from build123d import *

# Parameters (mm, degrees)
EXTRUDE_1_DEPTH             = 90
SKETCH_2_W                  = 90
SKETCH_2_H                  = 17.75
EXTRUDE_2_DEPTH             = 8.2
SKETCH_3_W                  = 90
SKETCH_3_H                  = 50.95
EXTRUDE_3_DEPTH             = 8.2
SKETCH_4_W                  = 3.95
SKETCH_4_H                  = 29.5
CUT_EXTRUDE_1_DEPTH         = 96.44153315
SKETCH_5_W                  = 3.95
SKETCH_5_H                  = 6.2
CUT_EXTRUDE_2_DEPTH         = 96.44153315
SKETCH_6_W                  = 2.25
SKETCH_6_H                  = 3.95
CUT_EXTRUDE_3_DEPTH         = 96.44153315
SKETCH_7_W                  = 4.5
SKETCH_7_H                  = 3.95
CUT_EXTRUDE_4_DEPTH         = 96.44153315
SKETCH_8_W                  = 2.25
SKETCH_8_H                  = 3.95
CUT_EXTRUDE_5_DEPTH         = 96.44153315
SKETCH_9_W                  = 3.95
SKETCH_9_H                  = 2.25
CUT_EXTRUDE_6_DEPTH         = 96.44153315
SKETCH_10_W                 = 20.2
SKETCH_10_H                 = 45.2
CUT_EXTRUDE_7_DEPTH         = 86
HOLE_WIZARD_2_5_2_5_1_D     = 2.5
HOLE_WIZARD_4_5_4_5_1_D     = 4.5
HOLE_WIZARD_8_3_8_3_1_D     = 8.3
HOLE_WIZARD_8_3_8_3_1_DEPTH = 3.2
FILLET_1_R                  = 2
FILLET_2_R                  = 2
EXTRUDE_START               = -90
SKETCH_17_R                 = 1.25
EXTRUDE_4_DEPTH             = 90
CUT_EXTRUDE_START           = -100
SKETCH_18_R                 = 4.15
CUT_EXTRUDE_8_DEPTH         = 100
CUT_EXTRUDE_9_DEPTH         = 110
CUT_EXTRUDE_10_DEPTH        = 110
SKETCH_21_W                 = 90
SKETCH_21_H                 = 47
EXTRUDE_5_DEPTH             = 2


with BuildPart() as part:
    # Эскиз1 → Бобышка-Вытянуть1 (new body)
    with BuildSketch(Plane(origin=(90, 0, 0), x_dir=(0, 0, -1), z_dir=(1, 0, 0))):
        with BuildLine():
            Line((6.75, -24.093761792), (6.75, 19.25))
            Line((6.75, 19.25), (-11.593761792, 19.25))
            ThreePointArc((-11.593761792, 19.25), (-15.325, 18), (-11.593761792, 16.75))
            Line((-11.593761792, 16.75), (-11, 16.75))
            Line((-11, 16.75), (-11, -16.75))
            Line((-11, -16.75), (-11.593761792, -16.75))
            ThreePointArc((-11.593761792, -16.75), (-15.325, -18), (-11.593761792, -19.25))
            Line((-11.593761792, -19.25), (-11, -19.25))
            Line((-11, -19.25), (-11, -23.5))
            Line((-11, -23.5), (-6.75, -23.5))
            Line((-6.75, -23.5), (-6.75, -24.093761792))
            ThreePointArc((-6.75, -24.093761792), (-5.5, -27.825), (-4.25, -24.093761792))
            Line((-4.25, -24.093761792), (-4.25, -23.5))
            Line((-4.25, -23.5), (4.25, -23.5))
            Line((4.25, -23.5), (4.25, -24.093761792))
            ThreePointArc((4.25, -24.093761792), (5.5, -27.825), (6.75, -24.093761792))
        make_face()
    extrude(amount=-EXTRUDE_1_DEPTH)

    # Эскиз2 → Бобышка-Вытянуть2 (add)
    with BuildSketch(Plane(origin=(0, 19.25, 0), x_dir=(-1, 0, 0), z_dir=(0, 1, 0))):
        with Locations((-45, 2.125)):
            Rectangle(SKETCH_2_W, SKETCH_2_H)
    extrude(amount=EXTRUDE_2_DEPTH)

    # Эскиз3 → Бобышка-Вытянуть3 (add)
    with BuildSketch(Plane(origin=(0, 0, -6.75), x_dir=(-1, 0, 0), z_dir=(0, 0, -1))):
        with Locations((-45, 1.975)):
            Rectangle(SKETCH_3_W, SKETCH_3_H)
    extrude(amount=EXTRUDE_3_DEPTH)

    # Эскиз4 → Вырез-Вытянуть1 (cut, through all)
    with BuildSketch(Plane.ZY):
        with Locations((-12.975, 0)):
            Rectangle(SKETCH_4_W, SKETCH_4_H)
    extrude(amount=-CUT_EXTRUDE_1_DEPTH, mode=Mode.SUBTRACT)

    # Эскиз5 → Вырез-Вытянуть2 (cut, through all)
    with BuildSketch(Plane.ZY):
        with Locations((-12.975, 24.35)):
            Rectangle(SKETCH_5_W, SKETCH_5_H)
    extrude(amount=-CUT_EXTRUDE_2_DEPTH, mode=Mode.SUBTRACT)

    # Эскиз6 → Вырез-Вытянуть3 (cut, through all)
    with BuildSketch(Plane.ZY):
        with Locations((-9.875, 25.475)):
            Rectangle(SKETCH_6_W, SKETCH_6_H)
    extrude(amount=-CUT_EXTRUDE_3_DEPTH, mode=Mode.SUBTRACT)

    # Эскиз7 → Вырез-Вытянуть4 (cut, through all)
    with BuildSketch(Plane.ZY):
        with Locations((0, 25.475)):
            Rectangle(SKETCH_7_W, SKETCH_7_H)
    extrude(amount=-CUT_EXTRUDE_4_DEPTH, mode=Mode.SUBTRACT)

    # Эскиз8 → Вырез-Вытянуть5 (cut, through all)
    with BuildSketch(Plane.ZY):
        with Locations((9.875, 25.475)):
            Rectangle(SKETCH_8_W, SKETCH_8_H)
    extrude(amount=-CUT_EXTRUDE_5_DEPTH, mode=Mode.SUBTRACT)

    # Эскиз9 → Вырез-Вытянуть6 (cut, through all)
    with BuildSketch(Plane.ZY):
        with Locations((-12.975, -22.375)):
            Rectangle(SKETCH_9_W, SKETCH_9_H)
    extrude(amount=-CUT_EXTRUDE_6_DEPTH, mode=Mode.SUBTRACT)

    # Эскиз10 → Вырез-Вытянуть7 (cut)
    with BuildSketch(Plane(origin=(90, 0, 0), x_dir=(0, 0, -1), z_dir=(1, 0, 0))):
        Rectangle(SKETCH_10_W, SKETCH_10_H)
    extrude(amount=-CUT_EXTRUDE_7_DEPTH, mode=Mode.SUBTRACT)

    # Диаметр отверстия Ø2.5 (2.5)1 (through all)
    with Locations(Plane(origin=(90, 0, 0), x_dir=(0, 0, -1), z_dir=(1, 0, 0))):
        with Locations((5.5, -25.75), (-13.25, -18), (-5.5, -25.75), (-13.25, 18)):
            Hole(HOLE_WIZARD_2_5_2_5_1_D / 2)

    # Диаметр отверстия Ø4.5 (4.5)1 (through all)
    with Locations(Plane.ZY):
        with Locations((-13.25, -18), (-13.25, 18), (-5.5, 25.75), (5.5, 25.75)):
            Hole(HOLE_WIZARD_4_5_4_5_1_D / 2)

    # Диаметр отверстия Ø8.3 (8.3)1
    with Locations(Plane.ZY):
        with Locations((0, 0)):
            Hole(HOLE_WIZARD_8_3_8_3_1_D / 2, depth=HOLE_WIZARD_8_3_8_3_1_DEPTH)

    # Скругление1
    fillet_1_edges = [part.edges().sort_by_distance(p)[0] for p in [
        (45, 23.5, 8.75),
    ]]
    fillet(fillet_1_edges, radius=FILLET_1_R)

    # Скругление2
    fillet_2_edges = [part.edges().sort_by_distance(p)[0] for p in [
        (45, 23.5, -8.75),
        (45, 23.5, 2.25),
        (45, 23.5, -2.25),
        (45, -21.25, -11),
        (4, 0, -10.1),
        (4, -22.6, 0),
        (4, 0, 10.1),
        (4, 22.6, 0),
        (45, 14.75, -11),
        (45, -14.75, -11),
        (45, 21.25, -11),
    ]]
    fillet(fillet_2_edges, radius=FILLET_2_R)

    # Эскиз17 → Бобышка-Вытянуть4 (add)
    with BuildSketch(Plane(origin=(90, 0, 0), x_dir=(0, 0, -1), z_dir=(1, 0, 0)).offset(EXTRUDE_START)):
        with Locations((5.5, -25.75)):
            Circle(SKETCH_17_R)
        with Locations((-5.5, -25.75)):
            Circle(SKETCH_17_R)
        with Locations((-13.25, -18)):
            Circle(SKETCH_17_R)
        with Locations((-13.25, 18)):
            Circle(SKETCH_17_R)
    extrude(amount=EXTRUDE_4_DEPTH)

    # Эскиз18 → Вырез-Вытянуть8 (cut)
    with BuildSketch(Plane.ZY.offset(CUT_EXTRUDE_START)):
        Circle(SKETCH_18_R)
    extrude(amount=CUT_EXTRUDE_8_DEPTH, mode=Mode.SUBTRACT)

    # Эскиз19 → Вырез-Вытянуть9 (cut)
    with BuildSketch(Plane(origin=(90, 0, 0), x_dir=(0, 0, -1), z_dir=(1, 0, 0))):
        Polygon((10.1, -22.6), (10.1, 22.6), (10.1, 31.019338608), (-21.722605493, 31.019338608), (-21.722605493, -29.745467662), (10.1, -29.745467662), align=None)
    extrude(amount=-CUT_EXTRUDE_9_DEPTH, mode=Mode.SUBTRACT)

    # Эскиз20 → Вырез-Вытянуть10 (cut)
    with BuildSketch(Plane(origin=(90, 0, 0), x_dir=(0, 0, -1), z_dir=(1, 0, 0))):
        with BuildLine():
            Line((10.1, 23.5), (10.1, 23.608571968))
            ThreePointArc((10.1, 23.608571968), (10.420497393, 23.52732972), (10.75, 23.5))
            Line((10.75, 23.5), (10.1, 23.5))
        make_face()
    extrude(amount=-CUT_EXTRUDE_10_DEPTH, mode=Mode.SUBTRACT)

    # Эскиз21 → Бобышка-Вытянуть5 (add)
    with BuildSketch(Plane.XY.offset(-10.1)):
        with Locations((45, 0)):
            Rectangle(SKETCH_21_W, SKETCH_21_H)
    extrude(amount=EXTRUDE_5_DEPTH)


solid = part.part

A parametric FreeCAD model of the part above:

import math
import FreeCAD as App
import Part
import Sketcher

V = App.Vector
Q = App.Units.Quantity


def edges_at(feature, points):
    """Names of the edges that pass closest to the given points."""
    edges = feature.Shape.Edges
    near = lambda p: min(range(len(edges)), key=lambda i: edges[i].distToShape(Part.Vertex(*p))[0])
    return sorted({f"Edge{near(p) + 1}" for p in points})


def add_polygon(sketch, points):
    """Adds a closed chain of lines whose ends are joined by coincident constraints."""
    first, n = sketch.GeometryCount, len(points)
    for a, b in zip(points, points[1:] + points[:1]):
        sketch.addGeometry(Part.LineSegment(App.Vector(*a, 0), App.Vector(*b, 0)), False)
    for i in range(n):
        sketch.addConstraint(Sketcher.Constraint("Coincident", first + i, 2, first + (i + 1) % n, 1))

doc = App.newDocument("Part")
params = doc.addObject("Spreadsheet::Sheet", "Params")
for row, (alias, value) in enumerate([
    ("sketch1_width", "33.5 mm"),
    ("sketch1_height", "8.5 mm"),
    ("pad1_length", "90 mm"),
    ("sketch2_width", "90 mm"),
    ("sketch2_height", "17.75 mm"),
    ("pad2_length", "8.2 mm"),
    ("sketch3_width", "90 mm"),
    ("sketch3_height", "50.95 mm"),
    ("pad3_length", "8.2 mm"),
    ("sketch4_width", "29.5 mm"),
    ("sketch4_height", "3.95 mm"),
    ("sketch5_width", "6.2 mm"),
    ("sketch5_height", "3.95 mm"),
    ("sketch6_width", "3.95 mm"),
    ("sketch6_height", "2.25 mm"),
    ("sketch7_height", "4.5 mm"),
    ("sketch7_width", "3.95 mm"),
    ("sketch8_width", "3.95 mm"),
    ("sketch8_height", "2.25 mm"),
    ("sketch9_width", "2.25 mm"),
    ("sketch9_height", "3.95 mm"),
    ("sketch10_width", "45.2 mm"),
    ("sketch10_height", "20.2 mm"),
    ("pocket7_length", "86 mm"),
    ("sketch11_diameter", "2.5 mm"),
    ("hole_diameter", "2.5 mm"),
    ("sketch12_diameter", "4.5 mm"),
    ("hole2_diameter", "4.5 mm"),
    ("sketch13_diameter", "8.3 mm"),
    ("hole3_diameter", "8.3 mm"),
    ("hole3_depth", "3.2 mm"),
    ("fillet_radius", "2 mm"),
    ("fillet2_radius", "2 mm"),
    ("sketch14_diameter", "2.5 mm"),
    ("pad4_length", "90 mm"),
    ("sketch15_diameter", "8.3 mm"),
    ("pocket8_length", "100 mm"),
    ("pocket9_length", "110 mm"),
    ("sketch17_radius", "2 mm"),
    ("sketch17_height", "0.65 mm"),
    ("pocket10_length", "110 mm"),
    ("sketch18_width", "90 mm"),
    ("sketch18_height", "47 mm"),
    ("pad5_length", "2 mm"),
], start=1):
    params.set(f"A{row}", alias)
    params.set(f"B{row}", "=" + value)
    params.setAlias(f"B{row}", alias)

body = doc.addObject("PartDesign::Body", "Body")

# Sketch on YZ plane
sketch1 = body.newObject("Sketcher::SketchObject", "Sketch")
sketch1.AttachmentSupport = (doc.getObject("YZ_Plane"), [""])
sketch1.MapMode = "FlatFace"
sketch1.AttachmentOffset = App.Placement(V(0, 0, 90), App.Rotation())
sketch1.addGeometry(Part.LineSegment(V(-24.1, -6.8, 0), V(19.2, -6.8, 0)), False)
sketch1.addGeometry(Part.LineSegment(V(19.2, -6.8, 0), V(19.2, 11.6, 0)), False)
sketch1.addGeometry(Part.ArcOfCircle(Part.Circle(V(18, 13.2, 0), V(0, 0, 1), 2.1), math.radians(-53), math.radians(233)), False)
sketch1.addGeometry(Part.LineSegment(V(16.8, 11.6, 0), V(16.8, 11, 0)), False)
sketch1.addGeometry(Part.LineSegment(V(16.8, 11, 0), V(-16.8, 11, 0)), False)
sketch1.addGeometry(Part.LineSegment(V(-16.8, 11, 0), V(-16.8, 11.6, 0)), False)
sketch1.addGeometry(Part.ArcOfCircle(Part.Circle(V(-18, 13.2, 0), V(0, 0, 1), 2.1), math.radians(-53), math.radians(233)), False)
sketch1.addGeometry(Part.LineSegment(V(-19.2, 11.6, 0), V(-19.2, 11, 0)), False)
sketch1.addGeometry(Part.LineSegment(V(-19.2, 11, 0), V(-23.5, 11, 0)), False)
sketch1.addGeometry(Part.LineSegment(V(-23.5, 11, 0), V(-23.5, 6.8, 0)), False)
sketch1.addGeometry(Part.LineSegment(V(-23.5, 6.8, 0), V(-24.1, 6.8, 0)), False)
sketch1.addGeometry(Part.ArcOfCircle(Part.Circle(V(-25.8, 5.5, 0), V(0, 0, 1), 2.1), math.radians(37), math.radians(323)), False)
sketch1.addGeometry(Part.LineSegment(V(-24.1, 4.2, 0), V(-23.5, 4.2, 0)), False)
sketch1.addGeometry(Part.LineSegment(V(-23.5, 4.2, 0), V(-23.5, -4.2, 0)), False)
sketch1.addGeometry(Part.LineSegment(V(-23.5, -4.2, 0), V(-24.1, -4.2, 0)), False)
sketch1.addGeometry(Part.ArcOfCircle(Part.Circle(V(-25.8, -5.5, 0), V(0, 0, 1), 2.1), math.radians(37), math.radians(323)), False)
sketch1.addConstraint(Sketcher.Constraint("Coincident", 0, 2, 1, 1))
sketch1.addConstraint(Sketcher.Constraint("Coincident", 1, 2, 2, 1))
sketch1.addConstraint(Sketcher.Constraint("Coincident", 2, 2, 3, 1))
sketch1.addConstraint(Sketcher.Constraint("Coincident", 3, 2, 4, 1))
sketch1.addConstraint(Sketcher.Constraint("Coincident", 4, 2, 5, 1))
sketch1.addConstraint(Sketcher.Constraint("Coincident", 5, 2, 6, 1))
sketch1.addConstraint(Sketcher.Constraint("Coincident", 6, 2, 7, 1))
sketch1.addConstraint(Sketcher.Constraint("Coincident", 7, 2, 8, 1))
sketch1.addConstraint(Sketcher.Constraint("Coincident", 8, 2, 9, 1))
sketch1.addConstraint(Sketcher.Constraint("Coincident", 9, 2, 10, 1))
sketch1.addConstraint(Sketcher.Constraint("Coincident", 10, 2, 11, 1))
sketch1.addConstraint(Sketcher.Constraint("Coincident", 11, 2, 12, 1))
sketch1.addConstraint(Sketcher.Constraint("Coincident", 12, 2, 13, 1))
sketch1.addConstraint(Sketcher.Constraint("Coincident", 13, 2, 14, 1))
sketch1.addConstraint(Sketcher.Constraint("Coincident", 14, 2, 15, 1))
sketch1.addConstraint(Sketcher.Constraint("Coincident", 15, 2, 0, 1))
sketch1.addConstraint(Sketcher.Constraint("Horizontal", 0))
sketch1.addConstraint(Sketcher.Constraint("Vertical", 1))
sketch1.addConstraint(Sketcher.Constraint("Vertical", 3))
sketch1.addConstraint(Sketcher.Constraint("Horizontal", 4))
sketch1.addConstraint(Sketcher.Constraint("Vertical", 5))
sketch1.addConstraint(Sketcher.Constraint("Vertical", 7))
sketch1.addConstraint(Sketcher.Constraint("Horizontal", 8))
sketch1.addConstraint(Sketcher.Constraint("Vertical", 9))
sketch1.addConstraint(Sketcher.Constraint("Horizontal", 10))
sketch1.addConstraint(Sketcher.Constraint("Horizontal", 12))
sketch1.addConstraint(Sketcher.Constraint("Vertical", 13))
sketch1.addConstraint(Sketcher.Constraint("Horizontal", 14))
sketch1.addConstraint(Sketcher.Constraint("Equal", 2, 6))
sketch1.addConstraint(Sketcher.Constraint("Equal", 6, 11))
sketch1.addConstraint(Sketcher.Constraint("Equal", 11, 15))
sketch1.addConstraint(Sketcher.Constraint("Symmetric", 2, 3, 6, 3, -2))
sketch1.addConstraint(Sketcher.Constraint("Symmetric", 11, 3, 15, 3, -1))
sketch1.addConstraint(Sketcher.Constraint("Horizontal", 1, 2, 2, 2))
sketch1.addConstraint(Sketcher.Constraint("Horizontal", 2, 2, 5, 2))
sketch1.addConstraint(Sketcher.Constraint("Horizontal", 5, 2, 6, 2))
sketch1.addConstraint(Sketcher.Constraint("Horizontal", 4, 2, 7, 2))
sketch1.addConstraint(Sketcher.Constraint("Vertical", 10, 2, 11, 2))
sketch1.addConstraint(Sketcher.Constraint("Vertical", 9, 2, 12, 2))
sketch1.addConstraint(Sketcher.Constraint("Vertical", 11, 2, 14, 2))
sketch1.addConstraint(Sketcher.Constraint("Vertical", 14, 2, 15, 2))
sketch1.addConstraint(Sketcher.Constraint("Equal", 14, 3))
sketch1.addConstraint(Sketcher.Constraint("Equal", 8, 9))
sketch1.addConstraint(Sketcher.Constraint("DistanceX", 4, 2, 4, 1, Q("33.5 mm")))
sketch1.addConstraint(Sketcher.Constraint("DistanceY", 13, 2, 13, 1, Q("8.5 mm")))
sketch1.addConstraint(Sketcher.Constraint("DistanceX", -1, 1, 2, 3, Q("18 mm")))
sketch1.addConstraint(Sketcher.Constraint("DistanceY", -1, 1, 3, 2, Q("11 mm")))
sketch1.addConstraint(Sketcher.Constraint("Radius", 2, Q("2.075 mm")))
sketch1.addConstraint(Sketcher.Constraint("DistanceY", 15, 3, 11, 3, Q("11 mm")))
sketch1.addConstraint(Sketcher.Constraint("DistanceY", 0, 2, 2, 3, Q("20 mm")))
sketch1.setExpression("Constraints[43]", "Params.sketch1_width")
sketch1.setExpression("Constraints[44]", "Params.sketch1_height")
pad1 = body.newObject("PartDesign::Pad", "Pad")
pad1.Profile = sketch1
pad1.setExpression("Length", "Params.pad1_length")
pad1.Reversed = True

# Sketch on XZ plane
sketch2 = body.newObject("Sketcher::SketchObject", "Sketch001")
sketch2.AttachmentSupport = (doc.getObject("XZ_Plane"), [""])
sketch2.MapMode = "FlatFace"
sketch2.AttachmentOffset = App.Placement(V(0, 0, -19.25), App.Rotation())
add_polygon(sketch2, [(90, 11), (90, -7), (0, -7), (0, 11)])  # lines 0-3
sketch2.addConstraint(Sketcher.Constraint("Vertical", 0))
sketch2.addConstraint(Sketcher.Constraint("Horizontal", 1))
sketch2.addConstraint(Sketcher.Constraint("Vertical", 2))
sketch2.addConstraint(Sketcher.Constraint("Horizontal", 3))
sketch2.addConstraint(Sketcher.Constraint("PointOnObject", 1, 2, -2))
sketch2.addConstraint(Sketcher.Constraint("DistanceX", 1, 2, 1, 1, Q("90 mm")))
sketch2.addConstraint(Sketcher.Constraint("DistanceY", -1, 1, 2, 2, Q("11 mm")))
sketch2.addConstraint(Sketcher.Constraint("DistanceY", 0, 2, 0, 1, Q("17.75 mm")))
sketch2.setExpression("Constraints[9]", "Params.sketch2_width")
sketch2.setExpression("Constraints[11]", "Params.sketch2_height")
pad2 = body.newObject("PartDesign::Pad", "Pad001")
pad2.Profile = sketch2
pad2.setExpression("Length", "Params.pad2_length")
pad2.Reversed = True

# Sketch on XY plane
sketch3 = body.newObject("Sketcher::SketchObject", "Sketch002")
sketch3.AttachmentSupport = (doc.getObject("XY_Plane"), [""])
sketch3.MapMode = "FlatFace"
sketch3.AttachmentOffset = App.Placement(V(0, 0, -6.75), App.Rotation())
add_polygon(sketch3, [(90, 27), (90, -24), (0, -24), (0, 27)])  # lines 0-3
sketch3.addConstraint(Sketcher.Constraint("Vertical", 0))
sketch3.addConstraint(Sketcher.Constraint("Horizontal", 1))
sketch3.addConstraint(Sketcher.Constraint("Vertical", 2))
sketch3.addConstraint(Sketcher.Constraint("Horizontal", 3))
sketch3.addConstraint(Sketcher.Constraint("PointOnObject", 1, 2, -2))
sketch3.addConstraint(Sketcher.Constraint("DistanceX", 1, 2, 1, 1, Q("90 mm")))
sketch3.addConstraint(Sketcher.Constraint("DistanceY", 0, 2, 0, 1, Q("50.95 mm")))
sketch3.addConstraint(Sketcher.Constraint("DistanceY", 0, 2, -1, 1, Q("23.5 mm")))
sketch3.setExpression("Constraints[9]", "Params.sketch3_width")
sketch3.setExpression("Constraints[10]", "Params.sketch3_height")
pad3 = body.newObject("PartDesign::Pad", "Pad002")
pad3.Profile = sketch3
pad3.setExpression("Length", "Params.pad3_length")
pad3.Reversed = True

# Sketch on YZ plane
sketch4 = body.newObject("Sketcher::SketchObject", "Sketch003")
sketch4.AttachmentSupport = (doc.getObject("YZ_Plane"), [""])
sketch4.MapMode = "FlatFace"
add_polygon(sketch4, [(14.8, -14.9), (-14.8, -14.9), (-14.8, -11), (14.8, -11)])  # lines 0-3
sketch4.addConstraint(Sketcher.Constraint("Horizontal", 0))
sketch4.addConstraint(Sketcher.Constraint("Vertical", 1))
sketch4.addConstraint(Sketcher.Constraint("Horizontal", 2))
sketch4.addConstraint(Sketcher.Constraint("Vertical", 3))
sketch4.addConstraint(Sketcher.Constraint("DistanceX", 0, 2, 0, 1, Q("29.5 mm")))
sketch4.addConstraint(Sketcher.Constraint("DistanceY", 1, 2, -1, 1, Q("11 mm")))
sketch4.addConstraint(Sketcher.Constraint("DistanceY", 1, 1, 1, 2, Q("3.95 mm")))
sketch4.addConstraint(Sketcher.Constraint("DistanceX", 0, 2, -1, 1, Q("14.75 mm")))
sketch4.setExpression("Constraints[8]", "Params.sketch4_width")
sketch4.setExpression("Constraints[10]", "Params.sketch4_height")
pocket1 = body.newObject("PartDesign::Pocket", "Pocket")
pocket1.Profile = sketch4
pocket1.Type = "ThroughAll"
pocket1.Reversed = True

# Sketch on YZ plane
sketch5 = body.newObject("Sketcher::SketchObject", "Sketch004")
sketch5.AttachmentSupport = (doc.getObject("YZ_Plane"), [""])
sketch5.MapMode = "FlatFace"
add_polygon(sketch5, [(27.4, -14.9), (21.2, -14.9), (21.2, -11), (27.4, -11)])  # lines 0-3
sketch5.addConstraint(Sketcher.Constraint("Horizontal", 0))
sketch5.addConstraint(Sketcher.Constraint("Vertical", 1))
sketch5.addConstraint(Sketcher.Constraint("Horizontal", 2))
sketch5.addConstraint(Sketcher.Constraint("Vertical", 3))
sketch5.addConstraint(Sketcher.Constraint("DistanceX", 0, 2, 0, 1, Q("6.2 mm")))
sketch5.addConstraint(Sketcher.Constraint("DistanceY", 1, 2, -1, 1, Q("11 mm")))
sketch5.addConstraint(Sketcher.Constraint("DistanceY", 1, 1, 1, 2, Q("3.95 mm")))
sketch5.addConstraint(Sketcher.Constraint("DistanceX", -1, 1, 0, 2, Q("21.25 mm")))
sketch5.setExpression("Constraints[8]", "Params.sketch5_width")
sketch5.setExpression("Constraints[10]", "Params.sketch5_height")
pocket2 = body.newObject("PartDesign::Pocket", "Pocket001")
pocket2.Profile = sketch5
pocket2.Type = "ThroughAll"
pocket2.Reversed = True

# Sketch on YZ plane
sketch6 = body.newObject("Sketcher::SketchObject", "Sketch005")
sketch6.AttachmentSupport = (doc.getObject("YZ_Plane"), [""])
sketch6.MapMode = "FlatFace"
add_polygon(sketch6, [(27.4, -11), (23.5, -11), (23.5, -8.8), (27.4, -8.8)])  # lines 0-3
sketch6.addConstraint(Sketcher.Constraint("Horizontal", 0))
sketch6.addConstraint(Sketcher.Constraint("Vertical", 1))
sketch6.addConstraint(Sketcher.Constraint("Horizontal", 2))
sketch6.addConstraint(Sketcher.Constraint("Vertical", 3))
sketch6.addConstraint(Sketcher.Constraint("DistanceY", 0, 2, -1, 1, Q("11 mm")))
sketch6.addConstraint(Sketcher.Constraint("DistanceX", 0, 2, 0, 1, Q("3.95 mm")))
sketch6.addConstraint(Sketcher.Constraint("DistanceY", 1, 1, 1, 2, Q("2.25 mm")))
sketch6.addConstraint(Sketcher.Constraint("DistanceX", -1, 1, 0, 2, Q("23.5 mm")))
sketch6.setExpression("Constraints[9]", "Params.sketch6_width")
sketch6.setExpression("Constraints[10]", "Params.sketch6_height")
pocket3 = body.newObject("PartDesign::Pocket", "Pocket002")
pocket3.Profile = sketch6
pocket3.Type = "ThroughAll"
pocket3.Reversed = True

# Sketch on YZ plane
sketch7 = body.newObject("Sketcher::SketchObject", "Sketch006")
sketch7.AttachmentSupport = (doc.getObject("YZ_Plane"), [""])
sketch7.MapMode = "FlatFace"
add_polygon(sketch7, [(27.4, -2.2), (23.5, -2.2), (23.5, 2.2), (27.4, 2.2)])  # lines 0-3
sketch7.addConstraint(Sketcher.Constraint("Horizontal", 0))
sketch7.addConstraint(Sketcher.Constraint("Vertical", 1))
sketch7.addConstraint(Sketcher.Constraint("Horizontal", 2))
sketch7.addConstraint(Sketcher.Constraint("Vertical", 3))
sketch7.addConstraint(Sketcher.Constraint("DistanceY", 1, 1, 1, 2, Q("4.5 mm")))
sketch7.addConstraint(Sketcher.Constraint("DistanceX", 0, 2, 0, 1, Q("3.95 mm")))
sketch7.addConstraint(Sketcher.Constraint("DistanceX", -1, 1, 0, 2, Q("23.5 mm")))
sketch7.addConstraint(Sketcher.Constraint("DistanceY", 0, 2, -1, 1, Q("2.25 mm")))
sketch7.setExpression("Constraints[8]", "Params.sketch7_height")
sketch7.setExpression("Constraints[9]", "Params.sketch7_width")
pocket4 = body.newObject("PartDesign::Pocket", "Pocket003")
pocket4.Profile = sketch7
pocket4.Type = "ThroughAll"
pocket4.Reversed = True

# Sketch on YZ plane
sketch8 = body.newObject("Sketcher::SketchObject", "Sketch007")
sketch8.AttachmentSupport = (doc.getObject("YZ_Plane"), [""])
sketch8.MapMode = "FlatFace"
add_polygon(sketch8, [(27.4, 8.8), (23.5, 8.8), (23.5, 11), (27.4, 11)])  # lines 0-3
sketch8.addConstraint(Sketcher.Constraint("Horizontal", 0))
sketch8.addConstraint(Sketcher.Constraint("Vertical", 1))
sketch8.addConstraint(Sketcher.Constraint("Horizontal", 2))
sketch8.addConstraint(Sketcher.Constraint("Vertical", 3))
sketch8.addConstraint(Sketcher.Constraint("DistanceY", -1, 1, 1, 2, Q("11 mm")))
sketch8.addConstraint(Sketcher.Constraint("DistanceX", 0, 2, 0, 1, Q("3.95 mm")))
sketch8.addConstraint(Sketcher.Constraint("DistanceY", 1, 1, 1, 2, Q("2.25 mm")))
sketch8.addConstraint(Sketcher.Constraint("DistanceX", -1, 1, 0, 2, Q("23.5 mm")))
sketch8.setExpression("Constraints[9]", "Params.sketch8_width")
sketch8.setExpression("Constraints[10]", "Params.sketch8_height")
pocket5 = body.newObject("PartDesign::Pocket", "Pocket004")
pocket5.Profile = sketch8
pocket5.Type = "ThroughAll"
pocket5.Reversed = True

# Sketch on YZ plane
sketch9 = body.newObject("Sketcher::SketchObject", "Sketch008")
sketch9.AttachmentSupport = (doc.getObject("YZ_Plane"), [""])
sketch9.MapMode = "FlatFace"
add_polygon(sketch9, [(-21.2, -14.9), (-23.5, -14.9), (-23.5, -11), (-21.2, -11)])  # lines 0-3
sketch9.addConstraint(Sketcher.Constraint("Horizontal", 0))
sketch9.addConstraint(Sketcher.Constraint("Vertical", 1))
sketch9.addConstraint(Sketcher.Constraint("Horizontal", 2))
sketch9.addConstraint(Sketcher.Constraint("Vertical", 3))
sketch9.addConstraint(Sketcher.Constraint("DistanceY", 1, 2, -1, 1, Q("11 mm")))
sketch9.addConstraint(Sketcher.Constraint("DistanceX", 0, 2, 0, 1, Q("2.25 mm")))
sketch9.addConstraint(Sketcher.Constraint("DistanceY", 1, 1, 1, 2, Q("3.95 mm")))
sketch9.addConstraint(Sketcher.Constraint("DistanceX", 0, 2, -1, 1, Q("23.5 mm")))
sketch9.setExpression("Constraints[9]", "Params.sketch9_width")
sketch9.setExpression("Constraints[10]", "Params.sketch9_height")
pocket6 = body.newObject("PartDesign::Pocket", "Pocket005")
pocket6.Profile = sketch9
pocket6.Type = "ThroughAll"
pocket6.Reversed = True

# Sketch on YZ plane
sketch10 = body.newObject("Sketcher::SketchObject", "Sketch009")
sketch10.AttachmentSupport = (doc.getObject("YZ_Plane"), [""])
sketch10.MapMode = "FlatFace"
sketch10.AttachmentOffset = App.Placement(V(0, 0, 90), App.Rotation())
add_polygon(sketch10, [(23, 10), (-23, 10), (-23, -10), (23, -10)])  # lines 0-3
sketch10.addConstraint(Sketcher.Constraint("Horizontal", 0))
sketch10.addConstraint(Sketcher.Constraint("Vertical", 1))
sketch10.addConstraint(Sketcher.Constraint("Horizontal", 2))
sketch10.addConstraint(Sketcher.Constraint("Vertical", 3))
sketch10.addConstraint(Sketcher.Constraint("Symmetric", 0, 2, 2, 2, -1, 1))
sketch10.addConstraint(Sketcher.Constraint("DistanceX", 0, 2, 0, 1, Q("45.2 mm")))
sketch10.addConstraint(Sketcher.Constraint("DistanceY", 1, 2, 1, 1, Q("20.2 mm")))
sketch10.setExpression("Constraints[9]", "Params.sketch10_width")
sketch10.setExpression("Constraints[10]", "Params.sketch10_height")
pocket7 = body.newObject("PartDesign::Pocket", "Pocket006")
pocket7.Profile = sketch10
pocket7.setExpression("Length", "Params.pocket7_length")

# Sketch on YZ plane
sketch11 = body.newObject("Sketcher::SketchObject", "Sketch010")
sketch11.AttachmentSupport = (doc.getObject("YZ_Plane"), [""])
sketch11.MapMode = "FlatFace"
sketch11.AttachmentOffset = App.Placement(V(0, 0, 90), App.Rotation())
sketch11.addGeometry(Part.Circle(V(-25.8, -5.5, 0), V(0, 0, 1), 1.2), False)
sketch11.addGeometry(Part.Circle(V(-18, 13.2, 0), V(0, 0, 1), 1.2), False)
sketch11.addGeometry(Part.Circle(V(-25.8, 5.5, 0), V(0, 0, 1), 1.2), False)
sketch11.addGeometry(Part.Circle(V(18, 13.2, 0), V(0, 0, 1), 1.2), False)
sketch11.addConstraint(Sketcher.Constraint("Equal", 0, 1))
sketch11.addConstraint(Sketcher.Constraint("Equal", 1, 2))
sketch11.addConstraint(Sketcher.Constraint("Equal", 2, 3))
sketch11.addConstraint(Sketcher.Constraint("Symmetric", 1, 3, 3, 3, -2))
sketch11.addConstraint(Sketcher.Constraint("Symmetric", 0, 3, 2, 3, -1))
sketch11.addConstraint(Sketcher.Constraint("Diameter", 0, Q("2.5 mm")))
sketch11.addConstraint(Sketcher.Constraint("DistanceX", 1, 3, -1, 1, Q("18 mm")))
sketch11.addConstraint(Sketcher.Constraint("DistanceY", 0, 3, 2, 3, Q("11 mm")))
sketch11.addConstraint(Sketcher.Constraint("DistanceX", 0, 3, -1, 1, Q("25.75 mm")))
sketch11.addConstraint(Sketcher.Constraint("DistanceY", -1, 1, 1, 3, Q("13.25 mm")))
sketch11.setExpression("Constraints[5]", "Params.sketch11_diameter")
doc.recompute()
hole = body.newObject("PartDesign::Hole", "Hole")
hole.Profile = sketch11
hole.ThreadType = "None"
hole.setExpression("Diameter", "Params.hole_diameter")
hole.DepthType = "ThroughAll"

# Sketch on YZ plane
sketch12 = body.newObject("Sketcher::SketchObject", "Sketch011")
sketch12.AttachmentSupport = (doc.getObject("YZ_Plane"), [""])
sketch12.MapMode = "FlatFace"
sketch12.addGeometry(Part.Circle(V(-18, -13.2, 0), V(0, 0, 1), 2.2), False)
sketch12.addGeometry(Part.Circle(V(18, -13.2, 0), V(0, 0, 1), 2.2), False)
sketch12.addGeometry(Part.Circle(V(25.8, -5.5, 0), V(0, 0, 1), 2.2), False)
sketch12.addGeometry(Part.Circle(V(25.8, 5.5, 0), V(0, 0, 1), 2.2), False)
sketch12.addConstraint(Sketcher.Constraint("Equal", 0, 1))
sketch12.addConstraint(Sketcher.Constraint("Equal", 1, 2))
sketch12.addConstraint(Sketcher.Constraint("Equal", 2, 3))
sketch12.addConstraint(Sketcher.Constraint("Symmetric", 0, 3, 1, 3, -2))
sketch12.addConstraint(Sketcher.Constraint("Symmetric", 2, 3, 3, 3, -1))
sketch12.addConstraint(Sketcher.Constraint("Diameter", 0, Q("4.5 mm")))
sketch12.addConstraint(Sketcher.Constraint("DistanceX", 0, 3, -1, 1, Q("18 mm")))
sketch12.addConstraint(Sketcher.Constraint("DistanceY", 2, 3, 3, 3, Q("11 mm")))
sketch12.addConstraint(Sketcher.Constraint("DistanceY", 0, 3, -1, 1, Q("13.25 mm")))
sketch12.addConstraint(Sketcher.Constraint("DistanceX", -1, 1, 2, 3, Q("25.75 mm")))
sketch12.setExpression("Constraints[5]", "Params.sketch12_diameter")
doc.recompute()
hole2 = body.newObject("PartDesign::Hole", "Hole001")
hole2.Profile = sketch12
hole2.ThreadType = "None"
hole2.setExpression("Diameter", "Params.hole2_diameter")
hole2.DepthType = "ThroughAll"
hole2.Reversed = True

# Sketch on YZ plane
sketch13 = body.newObject("Sketcher::SketchObject", "Sketch012")
sketch13.AttachmentSupport = (doc.getObject("YZ_Plane"), [""])
sketch13.MapMode = "FlatFace"
sketch13.addGeometry(Part.Circle(V(0, 0, 0), V(0, 0, 1), 4.2), False)
sketch13.addConstraint(Sketcher.Constraint("Coincident", 0, 3, -1, 1))
sketch13.addConstraint(Sketcher.Constraint("Diameter", 0, Q("8.3 mm")))
sketch13.setExpression("Constraints[1]", "Params.sketch13_diameter")
doc.recompute()
hole3 = body.newObject("PartDesign::Hole", "Hole002")
hole3.Profile = sketch13
hole3.ThreadType = "None"
hole3.setExpression("Diameter", "Params.hole3_diameter")
hole3.DepthType = "Dimension"
hole3.setExpression("Depth", "Params.hole3_depth")
hole3.DrillPoint = "Flat"
hole3.Reversed = True
doc.recompute()

fillet = body.newObject("PartDesign::Fillet", "Fillet")
fillet.Base = (hole3, edges_at(hole3, [(45, 23.5, 8.75)]))
fillet.setExpression("Radius", "Params.fillet_radius")
doc.recompute()

fillet2 = body.newObject("PartDesign::Fillet", "Fillet001")
fillet2.Base = (fillet, edges_at(fillet, [
    (45, 23.5, -8.75),
    (45, 23.5, 2.25),
    (45, 23.5, -2.25),
    (45, -21.25, -11),
    (4, 0, -10.1),
    (4, -22.6, 0),
    (4, 0, 10.1),
    (4, 22.6, 0),
    (45, 14.75, -11),
    (45, -14.75, -11),
    (45, 21.25, -11),
]))
fillet2.setExpression("Radius", "Params.fillet2_radius")

# Sketch on YZ plane
sketch14 = body.newObject("Sketcher::SketchObject", "Sketch013")
sketch14.AttachmentSupport = (doc.getObject("YZ_Plane"), [""])
sketch14.MapMode = "FlatFace"
sketch14.addGeometry(Part.Circle(V(-25.8, -5.5, 0), V(0, 0, 1), 1.2), False)
sketch14.addGeometry(Part.Circle(V(-25.8, 5.5, 0), V(0, 0, 1), 1.2), False)
sketch14.addGeometry(Part.Circle(V(-18, 13.2, 0), V(0, 0, 1), 1.2), False)
sketch14.addGeometry(Part.Circle(V(18, 13.2, 0), V(0, 0, 1), 1.2), False)
sketch14.addConstraint(Sketcher.Constraint("Equal", 0, 1))
sketch14.addConstraint(Sketcher.Constraint("Equal", 1, 2))
sketch14.addConstraint(Sketcher.Constraint("Equal", 2, 3))
sketch14.addConstraint(Sketcher.Constraint("Symmetric", 2, 3, 3, 3, -2))
sketch14.addConstraint(Sketcher.Constraint("Symmetric", 0, 3, 1, 3, -1))
sketch14.addConstraint(Sketcher.Constraint("Diameter", 0, Q("2.5 mm")))
sketch14.addConstraint(Sketcher.Constraint("DistanceX", 2, 3, -1, 1, Q("18 mm")))
sketch14.addConstraint(Sketcher.Constraint("DistanceY", 0, 3, 1, 3, Q("11 mm")))
sketch14.addConstraint(Sketcher.Constraint("DistanceX", 0, 3, -1, 1, Q("25.75 mm")))
sketch14.addConstraint(Sketcher.Constraint("DistanceY", -1, 1, 2, 3, Q("13.25 mm")))
sketch14.setExpression("Constraints[5]", "Params.sketch14_diameter")
pad4 = body.newObject("PartDesign::Pad", "Pad003")
pad4.Profile = sketch14
pad4.setExpression("Length", "Params.pad4_length")

# Sketch on YZ plane
sketch15 = body.newObject("Sketcher::SketchObject", "Sketch014")
sketch15.AttachmentSupport = (doc.getObject("YZ_Plane"), [""])
sketch15.MapMode = "FlatFace"
sketch15.AttachmentOffset = App.Placement(V(0, 0, 100), App.Rotation())
sketch15.addGeometry(Part.Circle(V(0, 0, 0), V(0, 0, 1), 4.2), False)
sketch15.addConstraint(Sketcher.Constraint("Coincident", 0, 3, -1, 1))
sketch15.addConstraint(Sketcher.Constraint("Diameter", 0, Q("8.3 mm")))
sketch15.setExpression("Constraints[1]", "Params.sketch15_diameter")
pocket8 = body.newObject("PartDesign::Pocket", "Pocket007")
pocket8.Profile = sketch15
pocket8.setExpression("Length", "Params.pocket8_length")

# Sketch on YZ plane
sketch16 = body.newObject("Sketcher::SketchObject", "Sketch015")
sketch16.AttachmentSupport = (doc.getObject("YZ_Plane"), [""])
sketch16.MapMode = "FlatFace"
sketch16.AttachmentOffset = App.Placement(V(0, 0, 90), App.Rotation())
add_polygon(sketch16, [(31, -10), (31, 22), (-30, 22), (-30, -10)])  # lines 0-3
sketch16.addConstraint(Sketcher.Constraint("Vertical", 0))
sketch16.addConstraint(Sketcher.Constraint("Horizontal", 1))
sketch16.addConstraint(Sketcher.Constraint("Vertical", 2))
sketch16.addConstraint(Sketcher.Constraint("Horizontal", 3))
sketch16.addConstraint(Sketcher.Constraint("DistanceY", 2, 2, -1, 1, Q("10.1 mm")))
sketch16.addConstraint(Sketcher.Constraint("DistanceX", 1, 2, 1, 1, Q("60.764806 mm")))
sketch16.addConstraint(Sketcher.Constraint("DistanceY", 0, 1, 0, 2, Q("31.822605 mm")))
sketch16.addConstraint(Sketcher.Constraint("DistanceX", -1, 1, 0, 2, Q("31.019339 mm")))
pocket9 = body.newObject("PartDesign::Pocket", "Pocket008")
pocket9.Profile = sketch16
pocket9.setExpression("Length", "Params.pocket9_length")

# Sketch on YZ plane
sketch17 = body.newObject("Sketcher::SketchObject", "Sketch016")
sketch17.AttachmentSupport = (doc.getObject("YZ_Plane"), [""])
sketch17.MapMode = "FlatFace"
sketch17.AttachmentOffset = App.Placement(V(0, 0, 90), App.Rotation())
sketch17.addGeometry(Part.LineSegment(V(23.61, -10.1, 0), V(23.5, -10.1, 0)), False)
sketch17.addGeometry(Part.LineSegment(V(23.5, -10.1, 0), V(23.5, -10.75, 0)), False)
sketch17.addGeometry(Part.ArcOfCircle(Part.Circle(V(25.5, -10.75, 0), V(0, 0, 1), 2), math.radians(161.03), math.radians(180)), False)
sketch17.addConstraint(Sketcher.Constraint("Coincident", 0, 2, 1, 1))
sketch17.addConstraint(Sketcher.Constraint("Tangent", 1, 2, 2, 2))
sketch17.addConstraint(Sketcher.Constraint("Coincident", 2, 1, 0, 1))
sketch17.addConstraint(Sketcher.Constraint("Horizontal", 0))
sketch17.addConstraint(Sketcher.Constraint("Vertical", 1))
sketch17.addConstraint(Sketcher.Constraint("Radius", 2, Q("2 mm")))
sketch17.addConstraint(Sketcher.Constraint("DistanceY", 1, 2, 1, 1, Q("0.65 mm")))
sketch17.addConstraint(Sketcher.Constraint("DistanceX", -1, 1, 2, 3, Q("25.5 mm")))
sketch17.addConstraint(Sketcher.Constraint("DistanceY", 0, 2, -1, 1, Q("10.1 mm")))
sketch17.setExpression("Constraints[5]", "Params.sketch17_radius")
sketch17.setExpression("Constraints[6]", "Params.sketch17_height")
pocket10 = body.newObject("PartDesign::Pocket", "Pocket009")
pocket10.Profile = sketch17
pocket10.setExpression("Length", "Params.pocket10_length")

# Sketch on XY plane
sketch18 = body.newObject("Sketcher::SketchObject", "Sketch017")
sketch18.AttachmentSupport = (doc.getObject("XY_Plane"), [""])
sketch18.MapMode = "FlatFace"
sketch18.AttachmentOffset = App.Placement(V(0, 0, -10.1), App.Rotation())
add_polygon(sketch18, [(0, 24), (0, -24), (90, -24), (90, 24)])  # lines 0-3
sketch18.addConstraint(Sketcher.Constraint("Vertical", 0))
sketch18.addConstraint(Sketcher.Constraint("Horizontal", 1))
sketch18.addConstraint(Sketcher.Constraint("Vertical", 2))
sketch18.addConstraint(Sketcher.Constraint("Horizontal", 3))
sketch18.addConstraint(Sketcher.Constraint("Symmetric", 0, 2, 3, 2, -1, 1))
sketch18.addConstraint(Sketcher.Constraint("DistanceX", 1, 1, 1, 2, Q("90 mm")))
sketch18.addConstraint(Sketcher.Constraint("DistanceY", 0, 2, 0, 1, Q("47 mm")))
sketch18.setExpression("Constraints[9]", "Params.sketch18_width")
sketch18.setExpression("Constraints[10]", "Params.sketch18_height")
pad5 = body.newObject("PartDesign::Pad", "Pad004")
pad5.Profile = sketch18
pad5.setExpression("Length", "Params.pad5_length")

doc.recompute()
